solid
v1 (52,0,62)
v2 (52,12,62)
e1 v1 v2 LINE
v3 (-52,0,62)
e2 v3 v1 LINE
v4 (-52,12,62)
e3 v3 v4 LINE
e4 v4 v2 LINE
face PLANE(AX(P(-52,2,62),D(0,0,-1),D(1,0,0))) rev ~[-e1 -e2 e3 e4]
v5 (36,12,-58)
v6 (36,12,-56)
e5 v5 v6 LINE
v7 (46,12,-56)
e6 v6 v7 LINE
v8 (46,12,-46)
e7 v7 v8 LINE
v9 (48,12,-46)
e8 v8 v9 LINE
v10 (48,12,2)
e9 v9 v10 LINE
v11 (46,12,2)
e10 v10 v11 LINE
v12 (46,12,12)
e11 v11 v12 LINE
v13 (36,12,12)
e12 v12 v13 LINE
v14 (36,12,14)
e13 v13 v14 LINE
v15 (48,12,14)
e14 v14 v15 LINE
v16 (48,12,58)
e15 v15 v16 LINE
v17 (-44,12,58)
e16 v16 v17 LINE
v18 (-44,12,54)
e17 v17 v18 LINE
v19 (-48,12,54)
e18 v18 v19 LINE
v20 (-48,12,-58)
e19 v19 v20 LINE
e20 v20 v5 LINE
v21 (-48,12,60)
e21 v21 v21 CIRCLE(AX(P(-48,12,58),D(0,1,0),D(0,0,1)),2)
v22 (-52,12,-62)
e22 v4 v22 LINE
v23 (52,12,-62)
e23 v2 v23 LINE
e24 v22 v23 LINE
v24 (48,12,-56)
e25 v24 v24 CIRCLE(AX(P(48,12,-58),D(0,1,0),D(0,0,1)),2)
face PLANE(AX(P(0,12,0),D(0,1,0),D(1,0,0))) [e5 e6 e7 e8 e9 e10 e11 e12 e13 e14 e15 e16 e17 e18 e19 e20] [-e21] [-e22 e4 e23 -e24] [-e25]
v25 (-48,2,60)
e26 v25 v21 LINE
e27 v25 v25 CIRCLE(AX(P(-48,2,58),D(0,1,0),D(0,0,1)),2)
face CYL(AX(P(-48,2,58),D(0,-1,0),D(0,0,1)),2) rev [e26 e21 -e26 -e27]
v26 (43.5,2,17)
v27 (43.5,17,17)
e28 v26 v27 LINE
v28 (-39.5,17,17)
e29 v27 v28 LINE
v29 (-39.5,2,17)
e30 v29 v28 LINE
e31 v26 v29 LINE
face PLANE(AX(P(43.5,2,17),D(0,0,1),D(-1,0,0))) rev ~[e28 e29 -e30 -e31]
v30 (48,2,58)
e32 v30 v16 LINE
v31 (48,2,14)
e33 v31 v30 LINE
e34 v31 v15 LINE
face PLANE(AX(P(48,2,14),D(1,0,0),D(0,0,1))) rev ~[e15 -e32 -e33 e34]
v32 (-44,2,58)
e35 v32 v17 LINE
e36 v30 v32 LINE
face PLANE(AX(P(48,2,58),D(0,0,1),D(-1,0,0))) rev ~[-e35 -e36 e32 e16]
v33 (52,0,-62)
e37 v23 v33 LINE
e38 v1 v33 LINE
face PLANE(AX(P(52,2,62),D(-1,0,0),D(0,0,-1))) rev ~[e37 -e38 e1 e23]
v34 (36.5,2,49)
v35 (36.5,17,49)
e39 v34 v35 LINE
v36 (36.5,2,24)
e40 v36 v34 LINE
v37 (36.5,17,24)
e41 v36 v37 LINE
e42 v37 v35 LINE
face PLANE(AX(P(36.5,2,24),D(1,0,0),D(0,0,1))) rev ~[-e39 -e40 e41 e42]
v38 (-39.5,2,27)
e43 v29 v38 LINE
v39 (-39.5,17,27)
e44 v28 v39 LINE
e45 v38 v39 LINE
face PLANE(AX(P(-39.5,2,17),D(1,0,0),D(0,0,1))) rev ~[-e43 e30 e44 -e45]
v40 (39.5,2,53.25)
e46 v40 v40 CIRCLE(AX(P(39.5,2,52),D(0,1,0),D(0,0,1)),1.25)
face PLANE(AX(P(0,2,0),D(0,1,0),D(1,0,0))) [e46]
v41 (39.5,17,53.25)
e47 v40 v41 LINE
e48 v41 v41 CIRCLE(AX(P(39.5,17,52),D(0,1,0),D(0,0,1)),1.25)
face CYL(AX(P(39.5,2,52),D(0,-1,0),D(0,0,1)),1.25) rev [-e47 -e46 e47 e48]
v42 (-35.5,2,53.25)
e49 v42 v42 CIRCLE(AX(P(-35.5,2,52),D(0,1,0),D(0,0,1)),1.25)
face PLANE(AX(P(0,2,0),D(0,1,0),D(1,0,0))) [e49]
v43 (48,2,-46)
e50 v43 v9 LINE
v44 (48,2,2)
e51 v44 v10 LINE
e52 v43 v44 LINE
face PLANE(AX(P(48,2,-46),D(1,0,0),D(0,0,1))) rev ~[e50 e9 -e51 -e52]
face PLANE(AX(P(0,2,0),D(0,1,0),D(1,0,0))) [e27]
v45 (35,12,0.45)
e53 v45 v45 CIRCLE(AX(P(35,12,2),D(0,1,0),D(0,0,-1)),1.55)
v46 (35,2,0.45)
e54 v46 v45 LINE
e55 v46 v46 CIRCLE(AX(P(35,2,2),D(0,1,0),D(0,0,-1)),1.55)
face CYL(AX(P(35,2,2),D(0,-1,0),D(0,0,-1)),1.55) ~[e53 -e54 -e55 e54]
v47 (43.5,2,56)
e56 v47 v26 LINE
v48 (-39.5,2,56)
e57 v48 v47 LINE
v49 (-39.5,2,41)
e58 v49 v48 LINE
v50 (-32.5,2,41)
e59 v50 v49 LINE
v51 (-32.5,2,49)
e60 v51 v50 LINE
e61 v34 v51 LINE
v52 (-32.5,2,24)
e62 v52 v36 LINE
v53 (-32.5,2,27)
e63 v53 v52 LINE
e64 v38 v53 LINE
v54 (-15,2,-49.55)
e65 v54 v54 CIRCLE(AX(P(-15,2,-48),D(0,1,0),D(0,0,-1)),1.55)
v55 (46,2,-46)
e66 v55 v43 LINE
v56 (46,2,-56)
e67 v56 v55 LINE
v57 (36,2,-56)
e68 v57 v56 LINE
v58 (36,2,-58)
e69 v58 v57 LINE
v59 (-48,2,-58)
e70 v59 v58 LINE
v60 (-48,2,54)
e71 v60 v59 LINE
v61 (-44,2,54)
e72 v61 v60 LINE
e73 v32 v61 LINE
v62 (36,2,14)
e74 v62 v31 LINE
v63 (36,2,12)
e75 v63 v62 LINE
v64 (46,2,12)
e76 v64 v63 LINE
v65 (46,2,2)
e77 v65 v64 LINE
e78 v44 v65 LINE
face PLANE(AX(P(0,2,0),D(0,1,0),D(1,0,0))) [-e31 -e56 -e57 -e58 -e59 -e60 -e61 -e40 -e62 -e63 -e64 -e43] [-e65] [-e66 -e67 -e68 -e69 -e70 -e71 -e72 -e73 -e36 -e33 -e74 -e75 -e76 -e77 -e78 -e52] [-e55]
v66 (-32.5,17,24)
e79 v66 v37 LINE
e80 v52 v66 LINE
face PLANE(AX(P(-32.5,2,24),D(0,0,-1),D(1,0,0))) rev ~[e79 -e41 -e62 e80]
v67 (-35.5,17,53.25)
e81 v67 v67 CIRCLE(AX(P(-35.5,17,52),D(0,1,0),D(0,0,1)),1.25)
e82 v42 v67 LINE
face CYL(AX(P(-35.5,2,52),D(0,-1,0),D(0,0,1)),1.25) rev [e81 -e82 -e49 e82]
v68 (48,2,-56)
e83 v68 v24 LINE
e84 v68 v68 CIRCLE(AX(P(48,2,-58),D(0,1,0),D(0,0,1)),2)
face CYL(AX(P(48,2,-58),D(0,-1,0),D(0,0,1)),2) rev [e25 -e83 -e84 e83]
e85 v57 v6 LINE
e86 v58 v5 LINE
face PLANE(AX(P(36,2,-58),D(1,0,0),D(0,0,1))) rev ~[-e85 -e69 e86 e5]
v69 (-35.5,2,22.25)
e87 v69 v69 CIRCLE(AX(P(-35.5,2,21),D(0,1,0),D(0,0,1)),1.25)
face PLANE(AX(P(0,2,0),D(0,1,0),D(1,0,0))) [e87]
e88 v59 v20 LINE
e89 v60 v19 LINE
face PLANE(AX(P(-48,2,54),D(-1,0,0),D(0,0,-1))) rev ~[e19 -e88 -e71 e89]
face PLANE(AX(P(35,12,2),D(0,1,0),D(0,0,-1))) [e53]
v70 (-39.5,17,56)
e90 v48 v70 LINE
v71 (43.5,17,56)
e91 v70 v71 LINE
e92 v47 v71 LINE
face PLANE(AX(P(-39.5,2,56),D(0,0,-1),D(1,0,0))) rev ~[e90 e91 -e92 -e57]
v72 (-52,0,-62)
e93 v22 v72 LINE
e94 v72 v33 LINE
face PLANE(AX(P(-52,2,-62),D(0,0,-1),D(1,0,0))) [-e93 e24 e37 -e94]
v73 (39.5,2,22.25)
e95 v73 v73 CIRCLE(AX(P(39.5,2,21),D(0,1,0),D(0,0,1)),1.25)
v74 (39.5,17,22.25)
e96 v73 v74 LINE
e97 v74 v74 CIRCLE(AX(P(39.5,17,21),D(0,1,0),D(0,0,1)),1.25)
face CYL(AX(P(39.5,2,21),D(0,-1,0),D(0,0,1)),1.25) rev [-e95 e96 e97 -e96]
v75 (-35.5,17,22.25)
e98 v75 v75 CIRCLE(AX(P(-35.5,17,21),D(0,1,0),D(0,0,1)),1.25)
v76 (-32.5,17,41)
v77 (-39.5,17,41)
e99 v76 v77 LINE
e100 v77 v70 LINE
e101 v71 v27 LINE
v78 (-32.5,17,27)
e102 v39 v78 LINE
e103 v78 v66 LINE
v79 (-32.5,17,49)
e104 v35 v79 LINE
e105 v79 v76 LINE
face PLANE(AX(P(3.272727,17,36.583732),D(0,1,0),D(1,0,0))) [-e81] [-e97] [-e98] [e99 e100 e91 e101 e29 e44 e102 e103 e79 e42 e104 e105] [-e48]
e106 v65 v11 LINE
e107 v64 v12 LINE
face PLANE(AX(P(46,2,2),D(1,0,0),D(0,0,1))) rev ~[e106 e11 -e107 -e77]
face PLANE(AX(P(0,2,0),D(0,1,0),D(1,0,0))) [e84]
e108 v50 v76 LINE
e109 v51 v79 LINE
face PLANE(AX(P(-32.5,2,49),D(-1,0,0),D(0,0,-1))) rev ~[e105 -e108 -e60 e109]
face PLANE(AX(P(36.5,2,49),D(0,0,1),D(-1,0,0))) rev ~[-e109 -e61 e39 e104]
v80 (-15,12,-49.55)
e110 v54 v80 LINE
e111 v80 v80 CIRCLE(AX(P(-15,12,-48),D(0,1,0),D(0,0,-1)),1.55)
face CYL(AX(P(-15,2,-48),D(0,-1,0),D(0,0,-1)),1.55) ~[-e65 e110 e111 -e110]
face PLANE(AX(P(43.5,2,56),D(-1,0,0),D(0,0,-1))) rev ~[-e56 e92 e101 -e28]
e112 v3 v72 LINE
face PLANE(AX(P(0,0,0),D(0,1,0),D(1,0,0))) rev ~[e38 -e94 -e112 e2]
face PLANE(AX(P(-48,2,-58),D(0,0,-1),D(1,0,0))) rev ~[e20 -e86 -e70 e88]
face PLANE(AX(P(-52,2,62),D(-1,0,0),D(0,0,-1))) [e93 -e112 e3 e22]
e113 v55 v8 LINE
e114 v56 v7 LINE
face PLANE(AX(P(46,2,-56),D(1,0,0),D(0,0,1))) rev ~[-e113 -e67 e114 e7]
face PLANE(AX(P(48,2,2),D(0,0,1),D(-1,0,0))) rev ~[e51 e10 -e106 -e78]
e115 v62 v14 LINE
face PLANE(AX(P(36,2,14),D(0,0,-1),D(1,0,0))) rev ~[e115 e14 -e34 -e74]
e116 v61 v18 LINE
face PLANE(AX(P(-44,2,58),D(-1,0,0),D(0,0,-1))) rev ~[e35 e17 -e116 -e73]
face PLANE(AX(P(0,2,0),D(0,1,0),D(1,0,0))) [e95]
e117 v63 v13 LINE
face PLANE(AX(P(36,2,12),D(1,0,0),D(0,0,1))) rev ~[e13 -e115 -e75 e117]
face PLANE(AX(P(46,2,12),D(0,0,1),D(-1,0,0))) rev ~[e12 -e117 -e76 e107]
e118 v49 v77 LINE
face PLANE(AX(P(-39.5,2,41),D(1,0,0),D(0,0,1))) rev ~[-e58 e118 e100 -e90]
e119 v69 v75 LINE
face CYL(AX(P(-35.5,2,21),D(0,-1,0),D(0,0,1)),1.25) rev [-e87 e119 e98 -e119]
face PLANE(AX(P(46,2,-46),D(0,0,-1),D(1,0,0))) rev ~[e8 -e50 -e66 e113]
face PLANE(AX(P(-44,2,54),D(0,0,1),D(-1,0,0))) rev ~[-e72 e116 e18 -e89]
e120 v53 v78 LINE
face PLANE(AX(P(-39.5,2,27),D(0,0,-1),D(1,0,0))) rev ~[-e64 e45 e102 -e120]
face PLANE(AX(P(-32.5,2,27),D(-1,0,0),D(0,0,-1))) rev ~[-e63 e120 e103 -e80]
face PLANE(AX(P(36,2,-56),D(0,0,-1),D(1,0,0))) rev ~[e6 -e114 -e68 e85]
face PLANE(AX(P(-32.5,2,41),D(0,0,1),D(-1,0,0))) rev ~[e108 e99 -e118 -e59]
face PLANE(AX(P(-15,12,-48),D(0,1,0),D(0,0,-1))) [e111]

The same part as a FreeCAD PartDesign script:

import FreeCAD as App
import Part
import Sketcher


def add_polygon(sketch, points):
    """Adds a closed chain of lines whose ends are joined by coincident constraints."""
    first, n = sketch.GeometryCount, len(points)
    for a, b in zip(points, points[1:] + points[:1]):
        sketch.addGeometry(Part.LineSegment(App.Vector(*a, 0), App.Vector(*b, 0)), False)
    for i in range(n):
        sketch.addConstraint(Sketcher.Constraint("Coincident", first + i, 2, first + (i + 1) % n, 1))

doc = App.newDocument("Part")
params = doc.addObject("Spreadsheet::Sheet", "Params")
for row, (alias, value) in enumerate([
    ("sketch1_width", "104 mm"),
    ("sketch1_height", "124 mm"),
    ("pad1_length", "2 mm"),
    ("sketch2_diameter", "4 mm"),
    ("sketch2_diameter2", "3.1 mm"),
    ("sketch2_width", "104 mm"),
    ("sketch2_width2", "12 mm"),
    ("sketch2_width3", "92 mm"),
    ("pad2_length", "10 mm"),
    ("sketch3_diameter", "2.5 mm"),
    ("sketch3_width", "69 mm"),
    ("sketch3_width2", "7 mm"),
    ("sketch3_width3", "83 mm"),
    ("sketch3_height", "8 mm"),
    ("pad3_length", "15 mm"),
], start=1):
    params.set(f"A{row}", alias)
    params.set(f"B{row}", "=" + value)
    params.setAlias(f"B{row}", alias)

body = doc.addObject("PartDesign::Body", "Body")

sketch1 = doc.addObject("Sketcher::SketchObject", "Sketch")
body.addObject(sketch1)
sketch1.AttachmentSupport = (doc.XZ_Plane, [""])
sketch1.MapMode = "FlatFace"
add_polygon(sketch1, [(-52, -62), (-52, 62), (52, 62), (52, -62)])
sketch1.addConstraint([
    Sketcher.Constraint("Vertical", 0),
    Sketcher.Constraint("Horizontal", 1),
    Sketcher.Constraint("Vertical", 2),
    Sketcher.Constraint("Horizontal", 3),
    Sketcher.Constraint("Symmetric", 0, 2, 2, 2, -1, 1),
    Sketcher.Constraint("DistanceX", 1, 1, 1, 2, 104.0),
    Sketcher.Constraint("DistanceY", 0, 1, 0, 2, 124.0),
])
sketch1.setExpression("Constraints[9]", "Params.sketch1_width")
sketch1.setExpression("Constraints[10]", "Params.sketch1_height")
pad1 = doc.addObject("PartDesign::Pad", "Pad")
body.addObject(pad1)
pad1.Profile = sketch1
pad1.setExpression("Length", "Params.pad1_length")
pad1.Reversed = True

sketch2 = doc.addObject("Sketcher::SketchObject", "Sketch001")
body.addObject(sketch2)
sketch2.AttachmentSupport = (doc.XZ_Plane, [""])
sketch2.MapMode = "FlatFace"
sketch2.AttachmentOffset = App.Placement(App.Vector(0, 0, -2), App.Rotation())
add_polygon(sketch2, [(-52, -62), (-52, 62), (52, 62), (52, -62)])
sketch2.addGeometry(Part.Circle(App.Vector(-48, 58, 0), App.Vector(0, 0, 1), 2), False)
add_polygon(sketch2, [(36, 12), (36, 14), (48, 14), (48, 58), (-44, 58), (-44, 54), (-48, 54), (-48, -58), (36, -58), (36, -56), (46, -56), (46, -46), (48, -46), (48, 2), (46, 2), (46, 12)])
sketch2.addGeometry(Part.Circle(App.Vector(48, -58, 0), App.Vector(0, 0, 1), 2), False)
sketch2.addGeometry(Part.Circle(App.Vector(-15, -48, 0), App.Vector(0, 0, 1), 1.55), False)
sketch2.addGeometry(Part.Circle(App.Vector(35, 2, 0), App.Vector(0, 0, 1), 1.55), False)
sketch2.addConstraint([
    Sketcher.Constraint("Vertical", 0),
    Sketcher.Constraint("Horizontal", 1),
    Sketcher.Constraint("Vertical", 2),
    Sketcher.Constraint("Horizontal", 3),
    Sketcher.Constraint("Vertical", 5),
    Sketcher.Constraint("Horizontal", 6),
    Sketcher.Constraint("Vertical", 7),
    Sketcher.Constraint("Horizontal", 8),
    Sketcher.Constraint("Vertical", 9),
    Sketcher.Constraint("Horizontal", 10),
    Sketcher.Constraint("Vertical", 11),
    Sketcher.Constraint("Horizontal", 12),
    Sketcher.Constraint("Vertical", 13),
    Sketcher.Constraint("Horizontal", 14),
    Sketcher.Constraint("Vertical", 15),
    Sketcher.Constraint("Horizontal", 16),
    Sketcher.Constraint("Vertical", 17),
    Sketcher.Constraint("Horizontal", 18),
    Sketcher.Constraint("Vertical", 19),
    Sketcher.Constraint("Horizontal", 20),
    Sketcher.Constraint("Equal", 4, 21),
    Sketcher.Constraint("Equal", 22, 23),
    Sketcher.Constraint("Symmetric", 4, 3, 21, 3, -1, 1),
    Sketcher.Constraint("Symmetric", 0, 2, 2, 2, -1, 1),
    Sketcher.Constraint("Symmetric", 7, 2, 11, 2, -1, 1),
    Sketcher.Constraint("Horizontal", 4, 3, 7, 2),
    Sketcher.Constraint("Horizontal", 23, 3, 17, 2),
    Sketcher.Constraint("Vertical", 21, 3, 6, 2),
    Sketcher.Constraint("Vertical", 5, 2, 12, 2),
    Sketcher.Constraint("Vertical", 7, 2, 16, 2),
    Sketcher.Constraint("Vertical", 15, 2, 18, 2),
    Sketcher.Constraint("Equal", 18, 5),
    Sketcher.Constraint("Equal", 10, 9),
    Sketcher.Constraint("Equal", 5, 13),
    Sketcher.Constraint("Equal", 20, 15),
    Sketcher.Constraint("Equal", 15, 19),
    Sketcher.Constraint("Diameter", 4, 4.0),
    Sketcher.Constraint("Diameter", 22, 3.1),
    Sketcher.Constraint("DistanceX", 1, 1, 1, 2, 104.0),
    Sketcher.Constraint("DistanceX", 6, 1, 6, 2, 12.0),
    Sketcher.Constraint("DistanceX", 8, 2, 8, 1, 92.0),
    Sketcher.Constraint("DistanceX", 10, 2, 10, 1, 4.0),
    Sketcher.Constraint("DistanceX", 14, 1, 14, 2, 10.0),
    Sketcher.Constraint("DistanceY", 0, 1, 0, 2, 124.0),
    Sketcher.Constraint("DistanceY", 7, 1, 7, 2, 44.0),
    Sketcher.Constraint("DistanceY", 11, 2, 11, 1, 112.0),
    Sketcher.Constraint("DistanceX", 22, 3, -1, 1, 15.0),
    Sketcher.Constraint("DistanceY", 22, 3, -1, 1, 48.0),
    Sketcher.Constraint("DistanceX", -1, 1, 23, 3, 35.0),
])
sketch2.setExpression("Constraints[56]", "Params.sketch2_diameter")
sketch2.setExpression("Constraints[57]", "Params.sketch2_diameter2")
sketch2.setExpression("Constraints[58]", "Params.sketch2_width")
sketch2.setExpression("Constraints[59]", "Params.sketch2_width2")
sketch2.setExpression("Constraints[60]", "Params.sketch2_width3")
pad2 = doc.addObject("PartDesign::Pad", "Pad001")
body.addObject(pad2)
pad2.Profile = sketch2
pad2.setExpression("Length", "Params.pad2_length")
pad2.Reversed = True

sketch3 = doc.addObject("Sketcher::SketchObject", "Sketch002")
body.addObject(sketch3)
sketch3.AttachmentSupport = (doc.XZ_Plane, [""])
sketch3.MapMode = "FlatFace"
sketch3.AttachmentOffset = App.Placement(App.Vector(0, 0, -2), App.Rotation())
add_polygon(sketch3, [(36.5, 49), (-32.5, 49), (-32.5, 41), (-39.5, 41), (-39.5, 56), (43.5, 56), (43.5, 17), (-39.5, 17), (-39.5, 27), (-32.5, 27), (-32.5, 24), (36.5, 24)])
sketch3.addGeometry(Part.Circle(App.Vector(-35.5, 52, 0), App.Vector(0, 0, 1), 1.25), False)
sketch3.addGeometry(Part.Circle(App.Vector(39.5, 52, 0), App.Vector(0, 0, 1), 1.25), False)
sketch3.addGeometry(Part.Circle(App.Vector(-35.5, 21, 0), App.Vector(0, 0, 1), 1.25), False)
sketch3.addGeometry(Part.Circle(App.Vector(39.5, 21, 0), App.Vector(0, 0, 1), 1.25), False)
sketch3.addConstraint([
    Sketcher.Constraint("Horizontal", 0),
    Sketcher.Constraint("Vertical", 1),
    Sketcher.Constraint("Horizontal", 2),
    Sketcher.Constraint("Vertical", 3),
    Sketcher.Constraint("Horizontal", 4),
    Sketcher.Constraint("Vertical", 5),
    Sketcher.Constraint("Horizontal", 6),
    Sketcher.Constraint("Vertical", 7),
    Sketcher.Constraint("Horizontal", 8),
    Sketcher.Constraint("Vertical", 9),
    Sketcher.Constraint("Horizontal", 10),
    Sketcher.Constraint("Vertical", 11),
    Sketcher.Constraint("Equal", 12, 13),
    Sketcher.Constraint("Equal", 13, 14),
    Sketcher.Constraint("Equal", 14, 15),
    Sketcher.Constraint("Horizontal", 12, 3, 13, 3),
    Sketcher.Constraint("Horizontal", 14, 3, 15, 3),
    Sketcher.Constraint("Vertical", 12, 3, 14, 3),
    Sketcher.Constraint("Vertical", 13, 3, 15, 3),
    Sketcher.Constraint("Vertical", 3, 2, 6, 2),
    Sketcher.Constraint("Vertical", 1, 2, 8, 2),
    Sketcher.Constraint("Diameter", 12, 2.5),
    Sketcher.Constraint("DistanceX", 0, 2, 0, 1, 69.0),
    Sketcher.Constraint("DistanceX", 2, 2, 2, 1, 7.0),
    Sketcher.Constraint("DistanceX", 4, 1, 4, 2, 83.0),
    Sketcher.Constraint("DistanceY", 1, 2, 1, 1, 8.0),
    Sketcher.Constraint("DistanceY", 3, 1, 3, 2, 15.0),
    Sketcher.Constraint("DistanceY", 5, 2, 5, 1, 39.0),
    Sketcher.Constraint("DistanceY", 7, 1, 7, 2, 10.0),
    Sketcher.Constraint("DistanceY", 9, 2, 9, 1, 3.0),
    Sketcher.Constraint("DistanceY", -1, 1, 12, 3, 52.0),
    Sketcher.Constraint("DistanceY", -1, 1, 14, 3, 21.0),
    Sketcher.Constraint("DistanceY", -1, 1, 0, 2, 49.0),
    Sketcher.Constraint("DistanceX", 12, 3, 13, 3, 75.0),
    Sketcher.Constraint("DistanceX", 12, 3, 0, 2, 3.0),
    Sketcher.Constraint("DistanceX", 12, 3, -1, 1, 35.5),
])
sketch3.setExpression("Constraints[33]", "Params.sketch3_diameter")
sketch3.setExpression("Constraints[34]", "Params.sketch3_width")
sketch3.setExpression("Constraints[35]", "Params.sketch3_width2")
sketch3.setExpression("Constraints[36]", "Params.sketch3_width3")
sketch3.setExpression("Constraints[37]", "Params.sketch3_height")
pad3 = doc.addObject("PartDesign::Pad", "Pad002")
body.addObject(pad3)
pad3.Profile = sketch3
pad3.setExpression("Length", "Params.pad3_length")
pad3.Reversed = True

doc.recompute()
